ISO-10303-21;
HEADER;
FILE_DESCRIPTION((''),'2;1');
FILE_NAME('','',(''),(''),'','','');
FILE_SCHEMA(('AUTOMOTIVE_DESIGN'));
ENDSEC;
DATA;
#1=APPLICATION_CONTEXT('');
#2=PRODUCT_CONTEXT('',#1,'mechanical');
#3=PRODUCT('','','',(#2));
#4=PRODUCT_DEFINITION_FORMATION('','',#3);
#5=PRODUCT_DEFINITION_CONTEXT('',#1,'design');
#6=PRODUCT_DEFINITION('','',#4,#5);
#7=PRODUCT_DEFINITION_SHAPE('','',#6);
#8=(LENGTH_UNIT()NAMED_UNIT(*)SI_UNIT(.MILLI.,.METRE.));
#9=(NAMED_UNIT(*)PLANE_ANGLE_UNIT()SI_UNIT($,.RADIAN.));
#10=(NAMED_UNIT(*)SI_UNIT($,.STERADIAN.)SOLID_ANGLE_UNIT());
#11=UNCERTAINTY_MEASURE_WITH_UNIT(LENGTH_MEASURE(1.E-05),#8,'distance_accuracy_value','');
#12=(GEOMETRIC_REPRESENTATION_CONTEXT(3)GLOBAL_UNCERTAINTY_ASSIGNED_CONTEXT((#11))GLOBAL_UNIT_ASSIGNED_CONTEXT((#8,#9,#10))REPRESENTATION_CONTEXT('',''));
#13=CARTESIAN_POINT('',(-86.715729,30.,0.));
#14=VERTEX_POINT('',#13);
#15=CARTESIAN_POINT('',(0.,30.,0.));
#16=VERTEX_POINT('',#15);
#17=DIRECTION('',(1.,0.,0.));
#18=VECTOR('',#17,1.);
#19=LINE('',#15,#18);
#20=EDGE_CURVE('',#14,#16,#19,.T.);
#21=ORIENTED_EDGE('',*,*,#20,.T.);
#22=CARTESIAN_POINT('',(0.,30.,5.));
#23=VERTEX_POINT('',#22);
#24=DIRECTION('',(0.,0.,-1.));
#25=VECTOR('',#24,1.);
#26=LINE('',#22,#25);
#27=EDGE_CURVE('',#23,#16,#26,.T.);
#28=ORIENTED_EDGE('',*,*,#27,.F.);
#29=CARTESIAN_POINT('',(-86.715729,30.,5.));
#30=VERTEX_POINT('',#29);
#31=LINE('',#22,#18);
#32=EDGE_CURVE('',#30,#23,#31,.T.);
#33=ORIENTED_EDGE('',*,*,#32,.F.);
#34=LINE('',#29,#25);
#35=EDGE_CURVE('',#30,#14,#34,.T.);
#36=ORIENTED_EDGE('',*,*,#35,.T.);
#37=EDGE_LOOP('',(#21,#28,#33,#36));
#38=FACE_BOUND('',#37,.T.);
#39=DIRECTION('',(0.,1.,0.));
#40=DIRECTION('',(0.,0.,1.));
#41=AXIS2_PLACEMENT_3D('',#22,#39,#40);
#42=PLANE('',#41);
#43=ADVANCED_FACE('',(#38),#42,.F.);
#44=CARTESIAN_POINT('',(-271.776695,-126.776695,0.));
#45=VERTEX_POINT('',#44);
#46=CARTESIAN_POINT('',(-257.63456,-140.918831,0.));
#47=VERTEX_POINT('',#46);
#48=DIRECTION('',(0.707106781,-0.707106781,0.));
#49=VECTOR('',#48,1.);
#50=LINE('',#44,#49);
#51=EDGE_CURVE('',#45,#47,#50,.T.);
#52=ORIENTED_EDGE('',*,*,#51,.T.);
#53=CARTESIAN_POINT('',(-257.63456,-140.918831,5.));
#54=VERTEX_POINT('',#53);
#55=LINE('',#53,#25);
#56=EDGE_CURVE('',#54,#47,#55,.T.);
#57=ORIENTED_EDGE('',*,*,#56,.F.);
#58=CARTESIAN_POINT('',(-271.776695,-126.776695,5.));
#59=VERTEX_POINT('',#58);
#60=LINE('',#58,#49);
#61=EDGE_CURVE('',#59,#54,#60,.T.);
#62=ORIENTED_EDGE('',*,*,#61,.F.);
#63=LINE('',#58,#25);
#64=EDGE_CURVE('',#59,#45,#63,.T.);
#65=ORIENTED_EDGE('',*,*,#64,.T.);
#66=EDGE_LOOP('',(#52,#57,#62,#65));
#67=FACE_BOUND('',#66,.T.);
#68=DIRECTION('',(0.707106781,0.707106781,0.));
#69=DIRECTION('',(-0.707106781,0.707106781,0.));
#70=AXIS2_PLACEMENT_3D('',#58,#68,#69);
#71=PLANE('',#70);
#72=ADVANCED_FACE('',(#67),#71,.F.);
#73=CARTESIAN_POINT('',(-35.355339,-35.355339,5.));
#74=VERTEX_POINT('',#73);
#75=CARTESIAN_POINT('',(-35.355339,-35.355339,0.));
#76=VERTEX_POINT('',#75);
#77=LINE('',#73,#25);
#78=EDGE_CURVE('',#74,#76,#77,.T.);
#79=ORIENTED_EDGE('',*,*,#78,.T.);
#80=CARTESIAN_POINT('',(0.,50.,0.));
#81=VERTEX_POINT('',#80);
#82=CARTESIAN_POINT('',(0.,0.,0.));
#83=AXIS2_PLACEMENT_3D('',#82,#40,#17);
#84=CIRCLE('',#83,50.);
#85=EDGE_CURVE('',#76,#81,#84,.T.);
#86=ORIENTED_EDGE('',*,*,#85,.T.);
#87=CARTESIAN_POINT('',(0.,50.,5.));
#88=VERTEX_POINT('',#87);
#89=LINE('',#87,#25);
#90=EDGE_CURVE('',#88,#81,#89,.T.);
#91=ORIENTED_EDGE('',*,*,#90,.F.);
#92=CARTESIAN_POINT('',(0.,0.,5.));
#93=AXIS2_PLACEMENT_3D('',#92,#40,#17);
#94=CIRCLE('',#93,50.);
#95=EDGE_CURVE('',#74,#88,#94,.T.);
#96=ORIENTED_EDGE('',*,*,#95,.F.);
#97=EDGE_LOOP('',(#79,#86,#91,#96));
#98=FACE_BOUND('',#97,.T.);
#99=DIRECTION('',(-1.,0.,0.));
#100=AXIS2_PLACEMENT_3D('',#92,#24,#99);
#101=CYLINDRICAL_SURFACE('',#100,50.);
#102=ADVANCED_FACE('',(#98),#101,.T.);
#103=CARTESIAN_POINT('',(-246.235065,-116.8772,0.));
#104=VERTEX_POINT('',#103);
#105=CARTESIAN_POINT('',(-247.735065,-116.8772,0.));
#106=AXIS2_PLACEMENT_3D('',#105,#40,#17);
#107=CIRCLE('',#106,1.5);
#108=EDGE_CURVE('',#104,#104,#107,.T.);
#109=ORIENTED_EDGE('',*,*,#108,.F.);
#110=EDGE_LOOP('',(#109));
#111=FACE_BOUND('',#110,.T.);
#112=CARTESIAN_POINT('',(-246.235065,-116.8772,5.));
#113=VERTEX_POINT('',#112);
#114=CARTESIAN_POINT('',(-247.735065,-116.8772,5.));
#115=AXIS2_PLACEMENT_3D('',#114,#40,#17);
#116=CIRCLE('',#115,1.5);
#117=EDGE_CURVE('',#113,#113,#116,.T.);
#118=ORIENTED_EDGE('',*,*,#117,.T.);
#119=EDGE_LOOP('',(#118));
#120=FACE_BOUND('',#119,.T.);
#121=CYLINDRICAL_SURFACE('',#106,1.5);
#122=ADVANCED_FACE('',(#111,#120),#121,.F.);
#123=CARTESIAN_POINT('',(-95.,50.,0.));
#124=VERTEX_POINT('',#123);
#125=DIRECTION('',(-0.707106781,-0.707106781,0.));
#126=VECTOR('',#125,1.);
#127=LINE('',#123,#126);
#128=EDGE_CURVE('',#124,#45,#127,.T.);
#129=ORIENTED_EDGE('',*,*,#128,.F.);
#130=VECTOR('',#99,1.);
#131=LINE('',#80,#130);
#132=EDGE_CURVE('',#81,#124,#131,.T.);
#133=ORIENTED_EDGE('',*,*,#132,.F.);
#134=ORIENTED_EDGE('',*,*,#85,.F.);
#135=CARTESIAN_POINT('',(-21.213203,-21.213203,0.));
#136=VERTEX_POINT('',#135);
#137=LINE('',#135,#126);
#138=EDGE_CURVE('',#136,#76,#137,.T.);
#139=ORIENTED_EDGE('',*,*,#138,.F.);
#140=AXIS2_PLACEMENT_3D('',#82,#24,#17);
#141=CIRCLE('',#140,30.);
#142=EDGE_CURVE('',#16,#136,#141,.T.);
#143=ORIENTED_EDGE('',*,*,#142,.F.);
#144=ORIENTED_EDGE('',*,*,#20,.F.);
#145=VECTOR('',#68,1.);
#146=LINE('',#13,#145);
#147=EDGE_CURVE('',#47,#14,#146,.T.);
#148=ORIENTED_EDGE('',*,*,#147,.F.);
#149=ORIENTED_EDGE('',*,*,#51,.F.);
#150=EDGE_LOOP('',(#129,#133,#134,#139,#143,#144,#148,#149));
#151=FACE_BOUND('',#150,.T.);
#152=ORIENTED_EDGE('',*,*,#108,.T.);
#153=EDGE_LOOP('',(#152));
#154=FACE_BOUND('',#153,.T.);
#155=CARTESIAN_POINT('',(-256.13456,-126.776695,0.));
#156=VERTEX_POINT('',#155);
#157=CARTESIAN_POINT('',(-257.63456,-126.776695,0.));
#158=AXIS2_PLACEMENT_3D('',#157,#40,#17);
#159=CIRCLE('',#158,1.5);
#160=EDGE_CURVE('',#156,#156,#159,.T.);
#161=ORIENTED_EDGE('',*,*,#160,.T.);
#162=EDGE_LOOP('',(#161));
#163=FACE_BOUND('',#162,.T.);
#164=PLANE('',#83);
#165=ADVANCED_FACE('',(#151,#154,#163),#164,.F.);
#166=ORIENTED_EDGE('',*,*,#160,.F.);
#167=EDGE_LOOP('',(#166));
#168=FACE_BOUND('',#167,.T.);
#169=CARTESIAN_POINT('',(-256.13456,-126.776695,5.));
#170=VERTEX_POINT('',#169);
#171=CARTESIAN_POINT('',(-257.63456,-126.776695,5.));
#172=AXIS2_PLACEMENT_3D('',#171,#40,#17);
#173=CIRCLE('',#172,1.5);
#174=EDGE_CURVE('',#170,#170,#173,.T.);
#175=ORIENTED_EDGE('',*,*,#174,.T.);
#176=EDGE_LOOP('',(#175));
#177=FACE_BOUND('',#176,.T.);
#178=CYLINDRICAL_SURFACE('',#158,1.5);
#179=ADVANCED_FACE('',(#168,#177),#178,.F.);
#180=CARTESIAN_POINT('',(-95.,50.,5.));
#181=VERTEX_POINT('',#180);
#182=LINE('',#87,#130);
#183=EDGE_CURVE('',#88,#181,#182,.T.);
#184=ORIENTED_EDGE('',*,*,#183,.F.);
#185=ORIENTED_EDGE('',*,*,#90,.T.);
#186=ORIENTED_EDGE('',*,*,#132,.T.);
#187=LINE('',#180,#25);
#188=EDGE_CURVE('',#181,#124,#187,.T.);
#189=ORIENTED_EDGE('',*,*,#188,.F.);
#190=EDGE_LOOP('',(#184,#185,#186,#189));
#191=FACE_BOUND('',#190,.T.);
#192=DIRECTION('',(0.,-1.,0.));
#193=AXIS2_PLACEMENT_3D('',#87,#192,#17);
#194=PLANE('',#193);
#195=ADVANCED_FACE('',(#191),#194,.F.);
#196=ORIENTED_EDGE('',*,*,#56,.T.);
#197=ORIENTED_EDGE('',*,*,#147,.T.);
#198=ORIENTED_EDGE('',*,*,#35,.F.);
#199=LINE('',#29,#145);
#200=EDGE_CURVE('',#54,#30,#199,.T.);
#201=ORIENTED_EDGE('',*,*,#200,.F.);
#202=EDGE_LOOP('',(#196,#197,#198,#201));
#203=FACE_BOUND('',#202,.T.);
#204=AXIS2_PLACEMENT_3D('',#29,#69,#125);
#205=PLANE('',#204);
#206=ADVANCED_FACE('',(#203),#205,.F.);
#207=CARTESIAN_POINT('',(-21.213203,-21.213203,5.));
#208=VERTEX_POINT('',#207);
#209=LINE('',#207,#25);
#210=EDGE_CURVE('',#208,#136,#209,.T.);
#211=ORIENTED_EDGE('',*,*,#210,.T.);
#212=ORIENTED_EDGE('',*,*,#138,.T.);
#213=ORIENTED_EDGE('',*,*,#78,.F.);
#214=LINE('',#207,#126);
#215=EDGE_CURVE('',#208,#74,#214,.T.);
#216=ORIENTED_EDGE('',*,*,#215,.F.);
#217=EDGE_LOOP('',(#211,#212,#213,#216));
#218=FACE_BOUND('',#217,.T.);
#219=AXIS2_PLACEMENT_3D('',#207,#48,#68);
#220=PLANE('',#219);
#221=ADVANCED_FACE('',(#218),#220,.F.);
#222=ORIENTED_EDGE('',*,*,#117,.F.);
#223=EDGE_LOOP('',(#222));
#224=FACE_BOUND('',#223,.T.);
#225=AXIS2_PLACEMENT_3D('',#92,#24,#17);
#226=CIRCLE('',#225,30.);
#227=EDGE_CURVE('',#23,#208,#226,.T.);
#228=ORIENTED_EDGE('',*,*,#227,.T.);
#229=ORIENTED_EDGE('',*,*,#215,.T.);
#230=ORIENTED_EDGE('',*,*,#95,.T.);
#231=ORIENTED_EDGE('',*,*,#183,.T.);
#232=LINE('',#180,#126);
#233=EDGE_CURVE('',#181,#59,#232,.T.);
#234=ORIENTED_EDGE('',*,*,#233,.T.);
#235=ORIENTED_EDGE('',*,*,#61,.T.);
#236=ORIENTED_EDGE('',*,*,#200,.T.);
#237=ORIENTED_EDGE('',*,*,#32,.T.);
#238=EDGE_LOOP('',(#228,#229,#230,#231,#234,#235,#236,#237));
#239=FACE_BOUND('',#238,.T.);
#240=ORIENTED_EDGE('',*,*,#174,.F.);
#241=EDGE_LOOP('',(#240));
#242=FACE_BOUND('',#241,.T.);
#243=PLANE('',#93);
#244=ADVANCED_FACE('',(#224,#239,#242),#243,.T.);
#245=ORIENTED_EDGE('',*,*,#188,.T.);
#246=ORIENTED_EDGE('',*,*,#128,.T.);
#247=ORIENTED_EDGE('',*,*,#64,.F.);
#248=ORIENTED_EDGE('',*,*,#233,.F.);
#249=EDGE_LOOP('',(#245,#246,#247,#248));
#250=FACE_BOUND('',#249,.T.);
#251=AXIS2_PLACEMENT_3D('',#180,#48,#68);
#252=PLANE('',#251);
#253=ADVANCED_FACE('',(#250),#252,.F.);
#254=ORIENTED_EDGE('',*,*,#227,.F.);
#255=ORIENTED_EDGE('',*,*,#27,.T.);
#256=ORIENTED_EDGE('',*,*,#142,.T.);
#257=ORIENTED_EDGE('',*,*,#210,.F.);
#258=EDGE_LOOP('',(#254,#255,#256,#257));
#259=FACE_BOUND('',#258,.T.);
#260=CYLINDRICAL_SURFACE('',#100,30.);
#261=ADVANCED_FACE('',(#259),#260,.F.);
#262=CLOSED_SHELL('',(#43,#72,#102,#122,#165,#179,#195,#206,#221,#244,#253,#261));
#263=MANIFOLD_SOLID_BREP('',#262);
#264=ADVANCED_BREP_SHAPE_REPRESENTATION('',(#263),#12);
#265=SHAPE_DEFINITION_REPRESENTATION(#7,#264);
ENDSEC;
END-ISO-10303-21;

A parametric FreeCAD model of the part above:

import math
import FreeCAD as App
import Part
import Sketcher

V = App.Vector
Q = App.Units.Quantity

doc = App.newDocument("Part")
body = doc.addObject("PartDesign::Body", "Body")

# Sketch on XY plane
sketch1 = body.newObject("Sketcher::SketchObject", "Sketch")
sketch1.AttachmentSupport = (doc.getObject("XY_Plane"), [""])
sketch1.MapMode = "FlatFace"
sketch1.addGeometry([
    Part.LineSegment(V(0, 50, 0), V(-95, 50, 0)),  # 0
    Part.LineSegment(V(-95, 50, 0), V(-272, -127, 0)),  # 1
    Part.LineSegment(V(-272, -127, 0), V(-258, -141, 0)),  # 2
    Part.LineSegment(V(-258, -141, 0), V(-87, 30, 0)),  # 3
    Part.LineSegment(V(-87, 30, 0), V(0, 30, 0)),  # 4
    Part.ArcOfCircle(Part.Circle(V(0, 0, 0), V(0, 0, 1), 30), math.radians(-135), math.radians(90)),  # 5
    Part.LineSegment(V(-21, -21, 0), V(-35, -35, 0)),  # 6
    Part.ArcOfCircle(Part.Circle(V(0, 0, 0), V(0, 0, 1), 50), math.radians(-135), math.radians(90)),  # 7
], False)
sketch1.addConstraint([
    Sketcher.Constraint("Coincident", 0, 2, 1, 1),
    Sketcher.Constraint("Coincident", 1, 2, 2, 1),
    Sketcher.Constraint("Coincident", 2, 2, 3, 1),
    Sketcher.Constraint("Coincident", 3, 2, 4, 1),
    Sketcher.Constraint("Tangent", 4, 2, 5, 2),
    Sketcher.Constraint("Coincident", 5, 1, 6, 1),
    Sketcher.Constraint("Coincident", 6, 2, 7, 1),
    Sketcher.Constraint("Tangent", 7, 2, 0, 1),
    Sketcher.Constraint("Horizontal", 0),
    Sketcher.Constraint("Horizontal", 4),
    Sketcher.Constraint("Coincident", 5, 3, -1, 1),
    Sketcher.Constraint("Coincident", 7, 3, -1, 1),
    Sketcher.Constraint("Perpendicular", 1, 2),
    Sketcher.Constraint("Perpendicular", 2, 3),
    Sketcher.Constraint("Parallel", 3, 6),
    Sketcher.Constraint("Equal", 2, 6),
    Sketcher.Constraint("Radius", 5, Q("30 mm")),
    Sketcher.Constraint("Radius", 7, Q("50 mm")),
    Sketcher.Constraint("DistanceX", 0, 2, 0, 1, Q("95 mm")),
    Sketcher.Constraint("Angle", 1, Q("-135 deg")),
    Sketcher.Constraint("Distance", 1, Q("250 mm")),
    Sketcher.Constraint("DistanceX", 6, 2, -1, 1, Q("35.355339 mm")),
])
pad1 = body.newObject("PartDesign::Pad", "Pad")
pad1.Profile = sketch1
pad1.Length = 5

# Sketch on XY plane
sketch2 = body.newObject("Sketcher::SketchObject", "Sketch001")
sketch2.AttachmentSupport = (doc.getObject("XY_Plane"), [""])
sketch2.MapMode = "FlatFace"
sketch2.AttachmentOffset = App.Placement(V(0, 0, 5), App.Rotation())
sketch2.addGeometry([
    Part.Circle(V(-257.6, -126.8, 0), V(0, 0, 1), 1.5),
    Part.Circle(V(-247.7, -116.9, 0), V(0, 0, 1), 1.5),
], False)
sketch2.addConstraint([
    Sketcher.Constraint("Equal", 0, 1),
    Sketcher.Constraint("Diameter", 0, Q("3 mm")),
    Sketcher.Constraint("DistanceY", 1, 3, -1, 1, Q("116.8772 mm")),
    Sketcher.Constraint("DistanceX", 0, 3, -1, 1, Q("257.63456 mm")),
    Sketcher.Constraint("DistanceY", 0, 3, -1, 1, Q("126.776695 mm")),
    Sketcher.Constraint("DistanceX", 1, 3, -1, 1, Q("247.735065 mm")),
])
pocket1 = body.newObject("PartDesign::Pocket", "Pocket")
pocket1.Profile = sketch2
pocket1.Type = "ThroughAll"

doc.recompute()
